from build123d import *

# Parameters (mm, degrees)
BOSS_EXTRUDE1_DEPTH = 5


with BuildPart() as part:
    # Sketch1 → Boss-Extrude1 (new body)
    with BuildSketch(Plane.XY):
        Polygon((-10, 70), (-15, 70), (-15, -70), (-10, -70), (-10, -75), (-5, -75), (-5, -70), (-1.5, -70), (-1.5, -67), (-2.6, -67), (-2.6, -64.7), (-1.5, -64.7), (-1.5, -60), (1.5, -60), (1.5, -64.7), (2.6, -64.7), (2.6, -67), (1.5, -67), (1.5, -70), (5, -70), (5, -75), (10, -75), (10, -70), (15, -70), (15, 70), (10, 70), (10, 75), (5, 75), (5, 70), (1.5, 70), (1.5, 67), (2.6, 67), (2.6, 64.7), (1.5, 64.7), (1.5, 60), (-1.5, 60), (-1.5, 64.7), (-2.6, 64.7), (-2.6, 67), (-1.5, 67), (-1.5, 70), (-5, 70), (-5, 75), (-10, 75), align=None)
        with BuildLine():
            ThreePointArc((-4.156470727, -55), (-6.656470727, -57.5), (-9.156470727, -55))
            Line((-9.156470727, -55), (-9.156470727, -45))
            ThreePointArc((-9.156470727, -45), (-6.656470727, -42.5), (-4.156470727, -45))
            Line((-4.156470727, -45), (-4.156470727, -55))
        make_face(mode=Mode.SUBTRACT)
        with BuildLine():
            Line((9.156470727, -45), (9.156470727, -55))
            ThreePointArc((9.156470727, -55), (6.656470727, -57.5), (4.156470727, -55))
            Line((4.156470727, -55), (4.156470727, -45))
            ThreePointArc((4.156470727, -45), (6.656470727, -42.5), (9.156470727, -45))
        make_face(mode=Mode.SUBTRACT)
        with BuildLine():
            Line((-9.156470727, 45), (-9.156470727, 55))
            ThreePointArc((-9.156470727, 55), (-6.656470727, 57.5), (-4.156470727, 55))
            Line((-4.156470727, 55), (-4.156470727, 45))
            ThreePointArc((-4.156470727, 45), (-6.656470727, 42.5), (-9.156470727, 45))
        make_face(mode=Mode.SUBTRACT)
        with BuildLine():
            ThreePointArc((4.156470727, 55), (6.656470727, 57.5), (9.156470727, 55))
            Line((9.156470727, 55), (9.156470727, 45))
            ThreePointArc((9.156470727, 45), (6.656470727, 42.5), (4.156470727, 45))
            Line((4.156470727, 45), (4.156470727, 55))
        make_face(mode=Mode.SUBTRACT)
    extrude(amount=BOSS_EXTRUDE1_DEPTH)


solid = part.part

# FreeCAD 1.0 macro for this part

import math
import FreeCAD as App
import Part
import Sketcher
from FreeCAD import Vector

doc = App.newDocument("Part")
body = doc.addObject("PartDesign::Body", "Body")

sketch1 = doc.addObject("Sketcher::SketchObject", "Sketch")
body.addObject(sketch1)
sketch1.AttachmentSupport = (doc.XY_Plane, [""])
sketch1.MapMode = "FlatFace"
sketch1.addGeometry([
    Part.LineSegment(Vector(-10, 70, 0), Vector(-15, 70, 0)),
    Part.LineSegment(Vector(-15, 70, 0), Vector(-15, -70, 0)),
    Part.LineSegment(Vector(-15, -70, 0), Vector(-10, -70, 0)),
    Part.LineSegment(Vector(-10, -70, 0), Vector(-10, -75, 0)),
    Part.LineSegment(Vector(-10, -75, 0), Vector(-5, -75, 0)),
    Part.LineSegment(Vector(-5, -75, 0), Vector(-5, -70, 0)),
    Part.LineSegment(Vector(-5, -70, 0), Vector(-1.5, -70, 0)),
    Part.LineSegment(Vector(-1.5, -70, 0), Vector(-1.5, -67, 0)),
    Part.LineSegment(Vector(-1.5, -67, 0), Vector(-2.6, -67, 0)),
    Part.LineSegment(Vector(-2.6, -67, 0), Vector(-2.6, -64.7, 0)),
    Part.LineSegment(Vector(-2.6, -64.7, 0), Vector(-1.5, -64.7, 0)),
    Part.LineSegment(Vector(-1.5, -64.7, 0), Vector(-1.5, -60, 0)),
    Part.LineSegment(Vector(-1.5, -60, 0), Vector(1.5, -60, 0)),
    Part.LineSegment(Vector(1.5, -60, 0), Vector(1.5, -64.7, 0)),
    Part.LineSegment(Vector(1.5, -64.7, 0), Vector(2.6, -64.7, 0)),
    Part.LineSegment(Vector(2.6, -64.7, 0), Vector(2.6, -67, 0)),
    Part.LineSegment(Vector(2.6, -67, 0), Vector(1.5, -67, 0)),
    Part.LineSegment(Vector(1.5, -67, 0), Vector(1.5, -70, 0)),
    Part.LineSegment(Vector(1.5, -70, 0), Vector(5, -70, 0)),
    Part.LineSegment(Vector(5, -70, 0), Vector(5, -75, 0)),
    Part.LineSegment(Vector(5, -75, 0), Vector(10, -75, 0)),
    Part.LineSegment(Vector(10, -75, 0), Vector(10, -70, 0)),
    Part.LineSegment(Vector(10, -70, 0), Vector(15, -70, 0)),
    Part.LineSegment(Vector(15, -70, 0), Vector(15, 70, 0)),
    Part.LineSegment(Vector(15, 70, 0), Vector(10, 70, 0)),
    Part.LineSegment(Vector(10, 70, 0), Vector(10, 75, 0)),
    Part.LineSegment(Vector(10, 75, 0), Vector(5, 75, 0)),
    Part.LineSegment(Vector(5, 75, 0), Vector(5, 70, 0)),
    Part.LineSegment(Vector(5, 70, 0), Vector(1.5, 70, 0)),
    Part.LineSegment(Vector(1.5, 70, 0), Vector(1.5, 67, 0)),
    Part.LineSegment(Vector(1.5, 67, 0), Vector(2.6, 67, 0)),
    Part.LineSegment(Vector(2.6, 67, 0), Vector(2.6, 64.7, 0)),
    Part.LineSegment(Vector(2.6, 64.7, 0), Vector(1.5, 64.7, 0)),
    Part.LineSegment(Vector(1.5, 64.7, 0), Vector(1.5, 60, 0)),
    Part.LineSegment(Vector(1.5, 60, 0), Vector(-1.5, 60, 0)),
    Part.LineSegment(Vector(-1.5, 60, 0), Vector(-1.5, 64.7, 0)),
    Part.LineSegment(Vector(-1.5, 64.7, 0), Vector(-2.6, 64.7, 0)),
    Part.LineSegment(Vector(-2.6, 64.7, 0), Vector(-2.6, 67, 0)),
    Part.LineSegment(Vector(-2.6, 67, 0), Vector(-1.5, 67, 0)),
    Part.LineSegment(Vector(-1.5, 67, 0), Vector(-1.5, 70, 0)),
    Part.LineSegment(Vector(-1.5, 70, 0), Vector(-5, 70, 0)),
    Part.LineSegment(Vector(-5, 70, 0), Vector(-5, 75, 0)),
    Part.LineSegment(Vector(-5, 75, 0), Vector(-10, 75, 0)),
    Part.LineSegment(Vector(-10, 75, 0), Vector(-10, 70, 0)),
    Part.LineSegment(Vector(-4.2, -45, 0), Vector(-4.2, -55, 0)),
    Part.ArcOfCircle(Part.Circle(Vector(-6.7, -55, 0), Vector(0, 0, 1), 2.5), math.radians(180), math.radians(360)),
    Part.LineSegment(Vector(-9.2, -55, 0), Vector(-9.2, -45, 0)),
    Part.ArcOfCircle(Part.Circle(Vector(-6.7, -45, 0), Vector(0, 0, 1), 2.5), math.radians(0), math.radians(180)),
    Part.ArcOfCircle(Part.Circle(Vector(6.7, -45, 0), Vector(0, 0, 1), 2.5), math.radians(0), math.radians(180)),
    Part.LineSegment(Vector(9.2, -45, 0), Vector(9.2, -55, 0)),
    Part.ArcOfCircle(Part.Circle(Vector(6.7, -55, 0), Vector(0, 0, 1), 2.5), math.radians(180), math.radians(360)),
    Part.LineSegment(Vector(4.2, -55, 0), Vector(4.2, -45, 0)),
    Part.ArcOfCircle(Part.Circle(Vector(-6.7, 45, 0), Vector(0, 0, 1), 2.5), math.radians(180), math.radians(360)),
    Part.LineSegment(Vector(-9.2, 45, 0), Vector(-9.2, 55, 0)),
    Part.ArcOfCircle(Part.Circle(Vector(-6.7, 55, 0), Vector(0, 0, 1), 2.5), math.radians(0), math.radians(180)),
    Part.LineSegment(Vector(-4.2, 55, 0), Vector(-4.2, 45, 0)),
    Part.LineSegment(Vector(4.2, 45, 0), Vector(4.2, 55, 0)),
    Part.ArcOfCircle(Part.Circle(Vector(6.7, 55, 0), Vector(0, 0, 1), 2.5), math.radians(0), math.radians(180)),
    Part.LineSegment(Vector(9.2, 55, 0), Vector(9.2, 45, 0)),
    Part.ArcOfCircle(Part.Circle(Vector(6.7, 45, 0), Vector(0, 0, 1), 2.5), math.radians(180), math.radians(360)),
], False)
sketch1.addConstraint([
    Sketcher.Constraint("Coincident", 0, 2, 1, 1),
    Sketcher.Constraint("Coincident", 1, 2, 2, 1),
    Sketcher.Constraint("Coincident", 2, 2, 3, 1),
    Sketcher.Constraint("Coincident", 3, 2, 4, 1),
    Sketcher.Constraint("Coincident", 4, 2, 5, 1),
    Sketcher.Constraint("Coincident", 5, 2, 6, 1),
    Sketcher.Constraint("Coincident", 6, 2, 7, 1),
    Sketcher.Constraint("Coincident", 7, 2, 8, 1),
    Sketcher.Constraint("Coincident", 8, 2, 9, 1),
    Sketcher.Constraint("Coincident", 9, 2, 10, 1),
    Sketcher.Constraint("Coincident", 10, 2, 11, 1),
    Sketcher.Constraint("Coincident", 11, 2, 12, 1),
    Sketcher.Constraint("Coincident", 12, 2, 13, 1),
    Sketcher.Constraint("Coincident", 13, 2, 14, 1),
    Sketcher.Constraint("Coincident", 14, 2, 15, 1),
    Sketcher.Constraint("Coincident", 15, 2, 16, 1),
    Sketcher.Constraint("Coincident", 16, 2, 17, 1),
    Sketcher.Constraint("Coincident", 17, 2, 18, 1),
    Sketcher.Constraint("Coincident", 18, 2, 19, 1),
    Sketcher.Constraint("Coincident", 19, 2, 20, 1),
    Sketcher.Constraint("Coincident", 20, 2, 21, 1),
    Sketcher.Constraint("Coincident", 21, 2, 22, 1),
    Sketcher.Constraint("Coincident", 22, 2, 23, 1),
    Sketcher.Constraint("Coincident", 23, 2, 24, 1),
    Sketcher.Constraint("Coincident", 24, 2, 25, 1),
    Sketcher.Constraint("Coincident", 25, 2, 26, 1),
    Sketcher.Constraint("Coincident", 26, 2, 27, 1),
    Sketcher.Constraint("Coincident", 27, 2, 28, 1),
    Sketcher.Constraint("Coincident", 28, 2, 29, 1),
    Sketcher.Constraint("Coincident", 29, 2, 30, 1),
    Sketcher.Constraint("Coincident", 30, 2, 31, 1),
    Sketcher.Constraint("Coincident", 31, 2, 32, 1),
    Sketcher.Constraint("Coincident", 32, 2, 33, 1),
    Sketcher.Constraint("Coincident", 33, 2, 34, 1),
    Sketcher.Constraint("Coincident", 34, 2, 35, 1),
    Sketcher.Constraint("Coincident", 35, 2, 36, 1),
    Sketcher.Constraint("Coincident", 36, 2, 37, 1),
    Sketcher.Constraint("Coincident", 37, 2, 38, 1),
    Sketcher.Constraint("Coincident", 38, 2, 39, 1),
    Sketcher.Constraint("Coincident", 39, 2, 40, 1),
    Sketcher.Constraint("Coincident", 40, 2, 41, 1),
    Sketcher.Constraint("Coincident", 41, 2, 42, 1),
    Sketcher.Constraint("Coincident", 42, 2, 43, 1),
    Sketcher.Constraint("Coincident", 43, 2, 0, 1),
    Sketcher.Constraint("Tangent", 44, 2, 45, 2),
    Sketcher.Constraint("Tangent", 45, 1, 46, 1),
    Sketcher.Constraint("Tangent", 46, 2, 47, 2),
    Sketcher.Constraint("Tangent", 47, 1, 44, 1),
    Sketcher.Constraint("Tangent", 48, 1, 49, 1),
    Sketcher.Constraint("Tangent", 49, 2, 50, 2),
    Sketcher.Constraint("Tangent", 50, 1, 51, 1),
    Sketcher.Constraint("Tangent", 51, 2, 48, 2),
    Sketcher.Constraint("Tangent", 52, 1, 53, 1),
    Sketcher.Constraint("Tangent", 53, 2, 54, 2),
    Sketcher.Constraint("Tangent", 54, 1, 55, 1),
    Sketcher.Constraint("Tangent", 55, 2, 52, 2),
    Sketcher.Constraint("Tangent", 56, 2, 57, 2),
    Sketcher.Constraint("Tangent", 57, 1, 58, 1),
    Sketcher.Constraint("Tangent", 58, 2, 59, 2),
    Sketcher.Constraint("Tangent", 59, 1, 56, 1),
    Sketcher.Constraint("Horizontal", 0),
    Sketcher.Constraint("Vertical", 1),
    Sketcher.Constraint("Horizontal", 2),
    Sketcher.Constraint("Vertical", 3),
    Sketcher.Constraint("Horizontal", 4),
    Sketcher.Constraint("Vertical", 5),
    Sketcher.Constraint("Horizontal", 6),
    Sketcher.Constraint("Vertical", 7),
    Sketcher.Constraint("Horizontal", 8),
    Sketcher.Constraint("Vertical", 9),
    Sketcher.Constraint("Horizontal", 10),
    Sketcher.Constraint("Vertical", 11),
    Sketcher.Constraint("Horizontal", 12),
    Sketcher.Constraint("Vertical", 13),
    Sketcher.Constraint("Horizontal", 14),
    Sketcher.Constraint("Vertical", 15),
    Sketcher.Constraint("Horizontal", 16),
    Sketcher.Constraint("Vertical", 17),
    Sketcher.Constraint("Horizontal", 18),
    Sketcher.Constraint("Vertical", 19),
    Sketcher.Constraint("Horizontal", 20),
    Sketcher.Constraint("Vertical", 21),
    Sketcher.Constraint("Horizontal", 22),
    Sketcher.Constraint("Vertical", 23),
    Sketcher.Constraint("Horizontal", 24),
    Sketcher.Constraint("Vertical", 25),
    Sketcher.Constraint("Horizontal", 26),
    Sketcher.Constraint("Vertical", 27),
    Sketcher.Constraint("Horizontal", 28),
    Sketcher.Constraint("Vertical", 29),
    Sketcher.Constraint("Horizontal", 30),
    Sketcher.Constraint("Vertical", 31),
    Sketcher.Constraint("Horizontal", 32),
    Sketcher.Constraint("Vertical", 33),
    Sketcher.Constraint("Horizontal", 34),
    Sketcher.Constraint("Vertical", 35),
    Sketcher.Constraint("Horizontal", 36),
    Sketcher.Constraint("Vertical", 37),
    Sketcher.Constraint("Horizontal", 38),
    Sketcher.Constraint("Vertical", 39),
    Sketcher.Constraint("Horizontal", 40),
    Sketcher.Constraint("Vertical", 41),
    Sketcher.Constraint("Horizontal", 42),
    Sketcher.Constraint("Vertical", 43),
    Sketcher.Constraint("Vertical", 44),
    Sketcher.Constraint("Vertical", 46),
    Sketcher.Constraint("Vertical", 49),
    Sketcher.Constraint("Vertical", 51),
    Sketcher.Constraint("Vertical", 53),
    Sketcher.Constraint("Vertical", 55),
    Sketcher.Constraint("Vertical", 56),
    Sketcher.Constraint("Vertical", 58),
    Sketcher.Constraint("Equal", 47, 48),
    Sketcher.Constraint("Equal", 50, 52),
    Sketcher.Constraint("Equal", 54, 57),
    Sketcher.Constraint("Symmetric", 48, 3, 52, 3, -1, 1),
    Sketcher.Constraint("Symmetric", 45, 3, 57, 3, -1, 1),
    Sketcher.Constraint("Symmetric", 0, 2, 22, 2, -1, 1),
    Sketcher.Constraint("Symmetric", 2, 2, 24, 2, -1, 1),
    Sketcher.Constraint("Symmetric", 4, 2, 26, 2, -1, 1),
    Sketcher.Constraint("Symmetric", 6, 2, 28, 2, -1, 1),
    Sketcher.Constraint("Symmetric", 8, 2, 30, 2, -1, 1),
    Sketcher.Constraint("Symmetric", 10, 2, 32, 2, -1, 1),
    Sketcher.Constraint("Symmetric", 12, 2, 34, 2, -1, 1),
    Sketcher.Constraint("Symmetric", 14, 2, 36, 2, -1, 1),
    Sketcher.Constraint("Symmetric", 16, 2, 38, 2, -1, 1),
    Sketcher.Constraint("Symmetric", 18, 2, 40, 2, -1, 1),
    Sketcher.Constraint("Symmetric", 20, 2, 42, 2, -1, 1),
    Sketcher.Constraint("Symmetric", 47, 3, 48, 3, -2),
    Sketcher.Constraint("Symmetric", 10, 2, 13, 2, -2),
    Sketcher.Constraint("Symmetric", 8, 2, 15, 2, -2),
    Sketcher.Constraint("Symmetric", 6, 2, 17, 2, -2),
    Sketcher.Constraint("Symmetric", 4, 2, 19, 2, -2),
    Sketcher.Constraint("Symmetric", 2, 2, 21, 2, -2),
    Sketcher.Constraint("Horizontal", 45, 3, 50, 3),
    Sketcher.Constraint("Horizontal", 54, 3, 57, 3),
    Sketcher.Constraint("Horizontal", 52, 3, 59, 3),
    Sketcher.Constraint("Horizontal", 2, 2, 5, 2),
    Sketcher.Constraint("Vertical", 7, 2, 10, 2),
    Sketcher.Constraint("Equal", 2, 4),
    Sketcher.Constraint("Equal", 42, 3),
    Sketcher.Constraint("Equal", 34, 7),
    Sketcher.Constraint("Radius", 45, 2.5),
    Sketcher.Constraint("DistanceX", 0, 2, 0, 1, 5.0),
    Sketcher.Constraint("DistanceX", 12, 1, 12, 2, 3.0),
    Sketcher.Constraint("DistanceY", 1, 2, 1, 1, 140.0),
    Sketcher.Constraint("DistanceY", 44, 2, 44, 1, 10.0),
    Sketcher.Constraint("DistanceX", 6, 1, 6, 2, 3.5),
    Sketcher.Constraint("DistanceX", 8, 2, 8, 1, 1.1),
    Sketcher.Constraint("DistanceY", 9, 1, 9, 2, 2.3),
    Sketcher.Constraint("DistanceY", 11, 1, 11, 2, 4.7),
    Sketcher.Constraint("DistanceY", 45, 3, -1, 1, 55.0),
    Sketcher.Constraint("DistanceX", 45, 3, -1, 1, 6.656471),
])
pad1 = doc.addObject("PartDesign::Pad", "Pad")
body.addObject(pad1)
pad1.Profile = sketch1
pad1.Length = 5

doc.recompute()
